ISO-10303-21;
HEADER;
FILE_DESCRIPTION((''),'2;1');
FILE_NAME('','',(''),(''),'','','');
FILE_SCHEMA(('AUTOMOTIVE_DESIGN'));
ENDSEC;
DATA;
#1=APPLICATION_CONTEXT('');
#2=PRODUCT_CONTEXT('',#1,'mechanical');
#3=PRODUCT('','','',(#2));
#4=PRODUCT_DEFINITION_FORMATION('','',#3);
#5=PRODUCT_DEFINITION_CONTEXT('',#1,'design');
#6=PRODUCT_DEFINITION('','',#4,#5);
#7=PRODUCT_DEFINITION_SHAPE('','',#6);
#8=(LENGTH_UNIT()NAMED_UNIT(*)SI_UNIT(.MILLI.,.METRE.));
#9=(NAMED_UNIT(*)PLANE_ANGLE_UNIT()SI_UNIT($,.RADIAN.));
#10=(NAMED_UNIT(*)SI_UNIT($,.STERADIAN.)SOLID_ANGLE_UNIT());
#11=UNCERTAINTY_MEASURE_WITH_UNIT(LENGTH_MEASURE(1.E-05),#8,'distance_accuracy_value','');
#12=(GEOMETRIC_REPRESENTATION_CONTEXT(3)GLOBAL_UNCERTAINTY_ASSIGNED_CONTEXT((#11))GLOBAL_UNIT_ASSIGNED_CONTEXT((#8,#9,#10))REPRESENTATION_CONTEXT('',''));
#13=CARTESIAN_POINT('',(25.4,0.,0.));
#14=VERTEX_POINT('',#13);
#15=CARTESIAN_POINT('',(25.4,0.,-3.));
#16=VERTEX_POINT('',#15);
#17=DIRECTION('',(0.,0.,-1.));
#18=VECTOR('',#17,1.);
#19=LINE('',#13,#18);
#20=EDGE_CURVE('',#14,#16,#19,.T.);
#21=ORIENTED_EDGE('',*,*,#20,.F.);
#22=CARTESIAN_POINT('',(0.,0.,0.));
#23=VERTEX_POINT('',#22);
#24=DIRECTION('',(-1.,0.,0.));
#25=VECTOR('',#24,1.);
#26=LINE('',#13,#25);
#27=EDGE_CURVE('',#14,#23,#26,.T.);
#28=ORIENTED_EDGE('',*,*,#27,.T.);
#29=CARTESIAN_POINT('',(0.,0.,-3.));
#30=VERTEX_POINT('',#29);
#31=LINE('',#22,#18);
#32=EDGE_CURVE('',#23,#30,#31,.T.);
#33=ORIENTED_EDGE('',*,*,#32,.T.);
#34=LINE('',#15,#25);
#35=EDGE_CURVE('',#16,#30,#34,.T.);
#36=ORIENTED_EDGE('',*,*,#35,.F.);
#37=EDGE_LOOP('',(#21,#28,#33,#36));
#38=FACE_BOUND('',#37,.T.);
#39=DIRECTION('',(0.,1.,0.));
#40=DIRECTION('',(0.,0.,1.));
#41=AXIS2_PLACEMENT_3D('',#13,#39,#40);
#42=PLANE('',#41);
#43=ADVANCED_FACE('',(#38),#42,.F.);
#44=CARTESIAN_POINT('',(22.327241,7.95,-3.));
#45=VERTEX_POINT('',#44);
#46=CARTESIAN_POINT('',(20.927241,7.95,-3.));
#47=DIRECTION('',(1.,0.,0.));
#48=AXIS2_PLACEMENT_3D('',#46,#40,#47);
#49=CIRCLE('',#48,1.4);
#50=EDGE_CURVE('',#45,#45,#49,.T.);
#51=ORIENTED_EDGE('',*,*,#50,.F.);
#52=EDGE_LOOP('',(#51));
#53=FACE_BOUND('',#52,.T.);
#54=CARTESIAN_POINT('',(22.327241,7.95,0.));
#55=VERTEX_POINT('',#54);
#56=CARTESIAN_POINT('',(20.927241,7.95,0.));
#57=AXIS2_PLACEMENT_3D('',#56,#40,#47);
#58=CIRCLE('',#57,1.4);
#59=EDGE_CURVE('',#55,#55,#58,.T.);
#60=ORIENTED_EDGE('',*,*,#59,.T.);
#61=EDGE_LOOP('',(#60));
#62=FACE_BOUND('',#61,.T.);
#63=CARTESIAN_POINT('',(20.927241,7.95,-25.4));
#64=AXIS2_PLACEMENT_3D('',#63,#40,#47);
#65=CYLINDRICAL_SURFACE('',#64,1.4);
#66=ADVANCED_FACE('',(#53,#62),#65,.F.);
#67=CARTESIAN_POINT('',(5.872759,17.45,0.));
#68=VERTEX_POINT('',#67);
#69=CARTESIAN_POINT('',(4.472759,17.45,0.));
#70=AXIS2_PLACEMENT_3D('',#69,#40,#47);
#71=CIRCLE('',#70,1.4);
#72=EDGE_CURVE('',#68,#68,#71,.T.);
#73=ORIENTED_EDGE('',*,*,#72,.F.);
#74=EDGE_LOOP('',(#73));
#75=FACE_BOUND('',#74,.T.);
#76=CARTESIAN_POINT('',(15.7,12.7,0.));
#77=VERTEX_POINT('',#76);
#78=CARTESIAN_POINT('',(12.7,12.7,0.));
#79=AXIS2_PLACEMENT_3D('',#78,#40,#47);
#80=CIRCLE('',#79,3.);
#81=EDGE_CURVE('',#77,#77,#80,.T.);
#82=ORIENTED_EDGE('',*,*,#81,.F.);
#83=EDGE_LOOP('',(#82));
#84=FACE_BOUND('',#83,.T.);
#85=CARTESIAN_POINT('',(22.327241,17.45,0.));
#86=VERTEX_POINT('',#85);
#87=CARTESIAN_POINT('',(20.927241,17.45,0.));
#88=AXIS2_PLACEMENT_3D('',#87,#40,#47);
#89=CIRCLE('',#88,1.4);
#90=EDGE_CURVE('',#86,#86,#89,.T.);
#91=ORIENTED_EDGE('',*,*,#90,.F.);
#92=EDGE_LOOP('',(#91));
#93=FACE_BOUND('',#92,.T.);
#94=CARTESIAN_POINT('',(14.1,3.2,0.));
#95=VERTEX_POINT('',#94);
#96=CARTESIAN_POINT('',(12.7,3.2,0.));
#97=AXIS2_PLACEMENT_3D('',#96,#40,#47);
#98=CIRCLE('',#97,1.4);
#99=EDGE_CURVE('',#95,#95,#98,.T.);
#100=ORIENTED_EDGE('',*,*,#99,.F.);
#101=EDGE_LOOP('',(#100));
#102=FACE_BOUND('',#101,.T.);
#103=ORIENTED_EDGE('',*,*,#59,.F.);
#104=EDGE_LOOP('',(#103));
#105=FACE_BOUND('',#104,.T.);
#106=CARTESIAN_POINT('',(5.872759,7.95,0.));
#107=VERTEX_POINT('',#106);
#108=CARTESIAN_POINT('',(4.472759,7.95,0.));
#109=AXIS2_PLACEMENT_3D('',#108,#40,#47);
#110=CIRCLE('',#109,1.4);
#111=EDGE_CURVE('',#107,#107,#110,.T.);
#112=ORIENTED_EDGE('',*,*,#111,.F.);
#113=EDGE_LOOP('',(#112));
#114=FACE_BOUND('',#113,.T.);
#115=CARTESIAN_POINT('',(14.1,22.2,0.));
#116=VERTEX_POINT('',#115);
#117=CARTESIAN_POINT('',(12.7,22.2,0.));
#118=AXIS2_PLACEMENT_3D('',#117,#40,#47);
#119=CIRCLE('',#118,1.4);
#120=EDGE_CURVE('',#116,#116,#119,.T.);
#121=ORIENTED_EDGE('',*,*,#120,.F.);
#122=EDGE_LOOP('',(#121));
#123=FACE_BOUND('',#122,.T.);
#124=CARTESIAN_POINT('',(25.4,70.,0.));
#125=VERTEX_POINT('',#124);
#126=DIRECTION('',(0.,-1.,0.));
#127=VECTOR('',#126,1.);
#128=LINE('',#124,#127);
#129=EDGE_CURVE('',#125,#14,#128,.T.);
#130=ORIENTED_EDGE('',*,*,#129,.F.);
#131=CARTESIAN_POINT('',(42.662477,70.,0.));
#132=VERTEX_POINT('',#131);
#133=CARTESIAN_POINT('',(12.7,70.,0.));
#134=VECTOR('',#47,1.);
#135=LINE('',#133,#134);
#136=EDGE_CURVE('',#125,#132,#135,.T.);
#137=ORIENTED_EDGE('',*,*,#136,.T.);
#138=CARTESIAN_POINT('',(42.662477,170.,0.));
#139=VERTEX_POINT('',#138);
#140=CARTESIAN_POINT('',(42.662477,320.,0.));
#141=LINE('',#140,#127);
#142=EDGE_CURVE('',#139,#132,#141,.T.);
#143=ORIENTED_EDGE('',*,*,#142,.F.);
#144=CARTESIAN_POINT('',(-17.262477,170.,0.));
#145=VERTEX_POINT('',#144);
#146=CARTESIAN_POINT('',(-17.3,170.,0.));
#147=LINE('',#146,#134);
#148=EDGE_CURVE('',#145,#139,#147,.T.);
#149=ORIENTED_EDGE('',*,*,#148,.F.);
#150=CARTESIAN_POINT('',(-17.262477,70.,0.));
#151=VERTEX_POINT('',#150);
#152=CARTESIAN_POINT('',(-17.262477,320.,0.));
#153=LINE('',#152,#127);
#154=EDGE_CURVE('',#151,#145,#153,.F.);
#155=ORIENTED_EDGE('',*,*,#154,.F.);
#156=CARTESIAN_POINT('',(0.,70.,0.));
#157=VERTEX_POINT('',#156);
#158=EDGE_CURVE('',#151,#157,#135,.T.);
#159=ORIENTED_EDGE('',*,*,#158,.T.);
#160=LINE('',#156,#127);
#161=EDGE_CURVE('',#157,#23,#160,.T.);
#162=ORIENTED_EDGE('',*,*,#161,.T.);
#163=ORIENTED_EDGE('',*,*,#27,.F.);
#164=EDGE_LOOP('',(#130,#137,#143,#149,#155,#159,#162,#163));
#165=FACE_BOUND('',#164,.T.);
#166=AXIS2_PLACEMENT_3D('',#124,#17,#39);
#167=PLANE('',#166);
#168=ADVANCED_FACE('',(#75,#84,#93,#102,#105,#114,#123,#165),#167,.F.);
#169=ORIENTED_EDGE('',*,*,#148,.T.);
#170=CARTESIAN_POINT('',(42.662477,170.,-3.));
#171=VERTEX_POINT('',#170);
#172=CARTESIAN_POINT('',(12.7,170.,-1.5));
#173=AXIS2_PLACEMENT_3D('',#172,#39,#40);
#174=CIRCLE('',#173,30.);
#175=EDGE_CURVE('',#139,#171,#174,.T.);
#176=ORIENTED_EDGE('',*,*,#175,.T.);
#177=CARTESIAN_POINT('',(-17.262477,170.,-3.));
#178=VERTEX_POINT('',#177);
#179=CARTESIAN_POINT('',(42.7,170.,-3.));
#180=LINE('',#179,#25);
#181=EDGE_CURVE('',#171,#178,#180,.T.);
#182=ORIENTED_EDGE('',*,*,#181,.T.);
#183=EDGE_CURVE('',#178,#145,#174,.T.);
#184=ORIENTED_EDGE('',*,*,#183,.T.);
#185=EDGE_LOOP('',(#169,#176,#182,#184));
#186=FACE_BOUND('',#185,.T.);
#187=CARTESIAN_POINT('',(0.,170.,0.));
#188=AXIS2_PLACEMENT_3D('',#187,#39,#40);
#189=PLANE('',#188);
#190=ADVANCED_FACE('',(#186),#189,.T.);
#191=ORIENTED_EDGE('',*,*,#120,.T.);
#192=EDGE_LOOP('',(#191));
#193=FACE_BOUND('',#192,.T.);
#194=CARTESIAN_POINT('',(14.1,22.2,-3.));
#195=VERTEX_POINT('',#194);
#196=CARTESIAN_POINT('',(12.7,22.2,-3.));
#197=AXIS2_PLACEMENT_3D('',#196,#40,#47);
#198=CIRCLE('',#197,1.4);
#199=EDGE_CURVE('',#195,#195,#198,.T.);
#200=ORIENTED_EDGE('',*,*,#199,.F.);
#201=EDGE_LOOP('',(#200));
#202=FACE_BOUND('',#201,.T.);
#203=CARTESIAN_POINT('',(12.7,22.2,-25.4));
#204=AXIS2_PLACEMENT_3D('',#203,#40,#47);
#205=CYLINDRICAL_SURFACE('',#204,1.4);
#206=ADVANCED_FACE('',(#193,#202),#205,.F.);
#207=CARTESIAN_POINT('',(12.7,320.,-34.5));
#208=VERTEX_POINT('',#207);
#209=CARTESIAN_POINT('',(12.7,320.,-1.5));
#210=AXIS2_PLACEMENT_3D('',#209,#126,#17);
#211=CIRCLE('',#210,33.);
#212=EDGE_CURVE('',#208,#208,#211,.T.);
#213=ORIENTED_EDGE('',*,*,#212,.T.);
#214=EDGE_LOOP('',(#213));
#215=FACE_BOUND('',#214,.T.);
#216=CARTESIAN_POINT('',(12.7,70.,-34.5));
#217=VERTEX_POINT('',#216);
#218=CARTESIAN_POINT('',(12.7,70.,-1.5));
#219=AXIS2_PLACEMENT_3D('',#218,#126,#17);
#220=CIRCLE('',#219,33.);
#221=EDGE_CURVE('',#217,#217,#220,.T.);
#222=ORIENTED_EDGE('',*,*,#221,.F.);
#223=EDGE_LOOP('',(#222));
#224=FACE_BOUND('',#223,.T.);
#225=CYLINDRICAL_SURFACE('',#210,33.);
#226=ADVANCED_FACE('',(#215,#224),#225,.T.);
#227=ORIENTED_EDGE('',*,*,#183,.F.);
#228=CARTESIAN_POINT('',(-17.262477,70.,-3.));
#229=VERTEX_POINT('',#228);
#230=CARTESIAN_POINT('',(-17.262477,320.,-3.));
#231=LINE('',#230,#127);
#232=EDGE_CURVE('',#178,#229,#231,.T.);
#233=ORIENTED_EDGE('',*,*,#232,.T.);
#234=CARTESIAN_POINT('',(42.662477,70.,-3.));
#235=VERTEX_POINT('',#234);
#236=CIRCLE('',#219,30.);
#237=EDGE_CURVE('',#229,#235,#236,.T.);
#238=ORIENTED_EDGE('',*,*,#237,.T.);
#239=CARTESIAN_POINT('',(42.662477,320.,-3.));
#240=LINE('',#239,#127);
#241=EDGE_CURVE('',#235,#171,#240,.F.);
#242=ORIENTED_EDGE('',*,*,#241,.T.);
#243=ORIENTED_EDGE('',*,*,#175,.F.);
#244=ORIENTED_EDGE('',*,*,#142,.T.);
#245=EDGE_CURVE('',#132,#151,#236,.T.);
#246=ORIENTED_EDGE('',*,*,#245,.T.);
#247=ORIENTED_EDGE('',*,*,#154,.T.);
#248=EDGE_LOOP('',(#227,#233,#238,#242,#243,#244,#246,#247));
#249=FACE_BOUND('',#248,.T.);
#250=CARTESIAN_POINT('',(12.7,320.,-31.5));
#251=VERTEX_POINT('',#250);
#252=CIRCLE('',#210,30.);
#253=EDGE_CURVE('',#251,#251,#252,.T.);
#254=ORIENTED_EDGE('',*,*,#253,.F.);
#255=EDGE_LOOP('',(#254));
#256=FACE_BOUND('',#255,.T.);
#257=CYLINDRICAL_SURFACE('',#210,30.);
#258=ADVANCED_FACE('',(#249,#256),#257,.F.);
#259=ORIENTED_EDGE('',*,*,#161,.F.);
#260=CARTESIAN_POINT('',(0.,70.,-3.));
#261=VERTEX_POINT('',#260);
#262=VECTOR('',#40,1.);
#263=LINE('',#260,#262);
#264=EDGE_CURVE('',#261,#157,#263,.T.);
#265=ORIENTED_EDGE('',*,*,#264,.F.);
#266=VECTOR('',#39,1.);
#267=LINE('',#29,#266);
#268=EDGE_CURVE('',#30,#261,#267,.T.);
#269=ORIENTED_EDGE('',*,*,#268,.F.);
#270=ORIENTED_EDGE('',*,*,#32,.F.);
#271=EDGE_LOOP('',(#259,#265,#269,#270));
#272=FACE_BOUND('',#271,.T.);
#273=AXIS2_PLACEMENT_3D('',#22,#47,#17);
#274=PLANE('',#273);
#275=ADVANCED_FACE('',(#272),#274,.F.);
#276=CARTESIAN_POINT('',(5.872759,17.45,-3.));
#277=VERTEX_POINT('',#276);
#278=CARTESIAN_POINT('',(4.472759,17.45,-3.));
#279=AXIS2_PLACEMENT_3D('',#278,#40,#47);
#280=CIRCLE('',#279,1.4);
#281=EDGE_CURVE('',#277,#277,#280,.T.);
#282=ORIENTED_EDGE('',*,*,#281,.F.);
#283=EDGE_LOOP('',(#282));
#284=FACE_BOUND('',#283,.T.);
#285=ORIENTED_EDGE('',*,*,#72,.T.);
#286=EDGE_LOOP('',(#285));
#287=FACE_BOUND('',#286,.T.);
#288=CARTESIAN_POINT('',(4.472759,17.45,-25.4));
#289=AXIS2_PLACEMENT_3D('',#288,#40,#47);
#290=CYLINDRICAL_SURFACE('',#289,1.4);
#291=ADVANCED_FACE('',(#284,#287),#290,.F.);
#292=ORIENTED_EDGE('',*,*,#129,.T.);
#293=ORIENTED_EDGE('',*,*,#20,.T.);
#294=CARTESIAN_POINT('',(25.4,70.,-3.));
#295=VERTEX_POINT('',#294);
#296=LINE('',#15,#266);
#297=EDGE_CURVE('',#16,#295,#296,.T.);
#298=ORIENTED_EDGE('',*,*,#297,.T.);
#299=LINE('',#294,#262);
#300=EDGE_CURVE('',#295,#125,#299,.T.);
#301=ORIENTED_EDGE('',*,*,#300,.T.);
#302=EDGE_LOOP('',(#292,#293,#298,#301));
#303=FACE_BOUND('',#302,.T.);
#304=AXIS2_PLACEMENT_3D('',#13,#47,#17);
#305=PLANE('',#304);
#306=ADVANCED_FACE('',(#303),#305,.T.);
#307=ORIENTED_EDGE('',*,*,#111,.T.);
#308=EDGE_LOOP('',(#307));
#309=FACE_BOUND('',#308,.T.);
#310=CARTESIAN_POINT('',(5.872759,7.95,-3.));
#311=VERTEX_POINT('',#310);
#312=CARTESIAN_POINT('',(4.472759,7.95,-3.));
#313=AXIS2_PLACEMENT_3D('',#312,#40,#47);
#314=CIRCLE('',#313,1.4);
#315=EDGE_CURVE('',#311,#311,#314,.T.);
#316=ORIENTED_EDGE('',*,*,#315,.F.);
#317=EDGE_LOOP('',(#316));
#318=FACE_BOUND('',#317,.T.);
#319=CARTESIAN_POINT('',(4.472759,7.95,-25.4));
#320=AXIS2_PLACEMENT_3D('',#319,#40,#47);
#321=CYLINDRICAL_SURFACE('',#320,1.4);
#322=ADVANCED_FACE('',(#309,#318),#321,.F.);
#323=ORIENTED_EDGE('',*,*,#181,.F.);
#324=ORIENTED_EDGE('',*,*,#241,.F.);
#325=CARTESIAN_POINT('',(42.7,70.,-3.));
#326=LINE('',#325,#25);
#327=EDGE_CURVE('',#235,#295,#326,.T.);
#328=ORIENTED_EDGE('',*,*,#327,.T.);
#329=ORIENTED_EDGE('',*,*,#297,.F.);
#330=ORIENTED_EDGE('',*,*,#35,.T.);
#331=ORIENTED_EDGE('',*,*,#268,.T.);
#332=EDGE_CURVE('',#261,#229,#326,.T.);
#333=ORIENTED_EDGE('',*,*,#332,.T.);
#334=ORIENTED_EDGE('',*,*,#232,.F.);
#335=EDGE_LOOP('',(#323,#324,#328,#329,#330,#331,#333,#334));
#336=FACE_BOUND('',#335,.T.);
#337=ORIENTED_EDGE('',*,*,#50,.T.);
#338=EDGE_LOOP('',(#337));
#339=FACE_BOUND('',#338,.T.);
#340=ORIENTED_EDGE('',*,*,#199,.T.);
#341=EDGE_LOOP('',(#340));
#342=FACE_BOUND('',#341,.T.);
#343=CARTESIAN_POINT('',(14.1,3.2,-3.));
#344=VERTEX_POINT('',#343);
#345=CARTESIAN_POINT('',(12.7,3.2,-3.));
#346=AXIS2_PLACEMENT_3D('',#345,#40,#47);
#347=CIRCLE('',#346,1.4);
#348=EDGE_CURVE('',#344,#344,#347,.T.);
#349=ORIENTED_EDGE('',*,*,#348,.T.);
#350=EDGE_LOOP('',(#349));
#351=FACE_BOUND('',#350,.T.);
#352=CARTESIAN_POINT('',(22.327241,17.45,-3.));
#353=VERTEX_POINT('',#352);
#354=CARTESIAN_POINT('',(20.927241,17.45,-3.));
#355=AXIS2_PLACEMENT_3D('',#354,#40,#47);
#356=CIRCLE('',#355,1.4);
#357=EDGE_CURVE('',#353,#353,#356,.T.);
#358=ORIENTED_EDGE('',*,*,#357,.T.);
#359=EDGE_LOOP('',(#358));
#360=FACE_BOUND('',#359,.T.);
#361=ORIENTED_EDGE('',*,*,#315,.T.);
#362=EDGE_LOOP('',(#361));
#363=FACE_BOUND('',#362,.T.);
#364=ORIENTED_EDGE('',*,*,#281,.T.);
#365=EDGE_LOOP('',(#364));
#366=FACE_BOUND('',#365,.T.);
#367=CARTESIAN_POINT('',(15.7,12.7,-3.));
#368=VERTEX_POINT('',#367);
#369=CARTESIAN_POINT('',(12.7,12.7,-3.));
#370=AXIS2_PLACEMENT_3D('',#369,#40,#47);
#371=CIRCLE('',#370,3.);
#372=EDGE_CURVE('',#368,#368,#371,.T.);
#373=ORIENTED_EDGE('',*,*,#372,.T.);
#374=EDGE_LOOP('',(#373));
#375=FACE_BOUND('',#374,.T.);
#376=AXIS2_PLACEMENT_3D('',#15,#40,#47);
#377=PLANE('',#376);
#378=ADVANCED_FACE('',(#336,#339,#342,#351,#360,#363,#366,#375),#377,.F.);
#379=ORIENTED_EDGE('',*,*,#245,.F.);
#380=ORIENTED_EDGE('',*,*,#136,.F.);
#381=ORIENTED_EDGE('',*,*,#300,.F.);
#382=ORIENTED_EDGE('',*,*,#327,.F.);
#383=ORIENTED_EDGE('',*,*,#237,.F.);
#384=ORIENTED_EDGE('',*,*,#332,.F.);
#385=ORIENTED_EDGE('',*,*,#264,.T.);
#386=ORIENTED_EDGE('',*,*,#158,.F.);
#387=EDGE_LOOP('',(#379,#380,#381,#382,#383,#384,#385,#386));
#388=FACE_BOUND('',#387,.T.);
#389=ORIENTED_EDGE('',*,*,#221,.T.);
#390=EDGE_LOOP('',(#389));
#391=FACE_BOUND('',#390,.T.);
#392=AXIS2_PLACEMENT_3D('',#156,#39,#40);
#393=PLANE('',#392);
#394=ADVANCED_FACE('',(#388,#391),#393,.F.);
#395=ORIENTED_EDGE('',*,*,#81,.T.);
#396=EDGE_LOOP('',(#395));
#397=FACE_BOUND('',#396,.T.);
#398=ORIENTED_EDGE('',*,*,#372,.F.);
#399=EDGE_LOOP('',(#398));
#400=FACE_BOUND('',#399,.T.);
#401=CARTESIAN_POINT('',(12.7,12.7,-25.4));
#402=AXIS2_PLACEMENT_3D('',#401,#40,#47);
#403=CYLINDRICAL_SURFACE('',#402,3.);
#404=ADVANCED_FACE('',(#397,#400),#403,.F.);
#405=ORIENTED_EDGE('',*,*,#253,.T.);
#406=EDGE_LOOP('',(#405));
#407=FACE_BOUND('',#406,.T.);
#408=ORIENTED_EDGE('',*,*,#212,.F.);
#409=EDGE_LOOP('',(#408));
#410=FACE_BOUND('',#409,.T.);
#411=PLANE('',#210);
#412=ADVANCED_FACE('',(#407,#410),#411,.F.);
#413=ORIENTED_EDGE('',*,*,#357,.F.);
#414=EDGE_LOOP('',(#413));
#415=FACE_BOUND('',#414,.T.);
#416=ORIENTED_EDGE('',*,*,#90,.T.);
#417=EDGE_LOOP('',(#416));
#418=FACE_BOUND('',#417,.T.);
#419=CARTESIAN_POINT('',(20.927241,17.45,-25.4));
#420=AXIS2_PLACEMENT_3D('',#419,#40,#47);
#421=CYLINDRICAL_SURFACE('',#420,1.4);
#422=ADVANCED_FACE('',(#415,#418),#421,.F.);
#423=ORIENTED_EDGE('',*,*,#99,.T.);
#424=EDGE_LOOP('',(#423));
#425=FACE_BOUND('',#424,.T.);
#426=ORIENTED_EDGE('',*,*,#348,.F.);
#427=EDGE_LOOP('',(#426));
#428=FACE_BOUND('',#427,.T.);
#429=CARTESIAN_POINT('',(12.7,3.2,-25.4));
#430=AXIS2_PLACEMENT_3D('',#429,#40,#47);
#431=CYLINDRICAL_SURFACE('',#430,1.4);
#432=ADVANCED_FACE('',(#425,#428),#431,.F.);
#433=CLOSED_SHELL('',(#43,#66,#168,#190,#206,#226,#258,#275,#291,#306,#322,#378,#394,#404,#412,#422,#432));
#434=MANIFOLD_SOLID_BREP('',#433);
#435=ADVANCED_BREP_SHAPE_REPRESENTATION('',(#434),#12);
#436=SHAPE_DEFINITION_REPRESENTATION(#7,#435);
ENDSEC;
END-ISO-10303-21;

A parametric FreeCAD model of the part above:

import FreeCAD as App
import Part
import Sketcher
Q = App.Units.Quantity


def add_polygon(sketch, points):
    """Adds a closed chain of lines whose ends are joined by coincident constraints."""
    first, n = sketch.GeometryCount, len(points)
    for a, b in zip(points, points[1:] + points[:1]):
        sketch.addGeometry(Part.LineSegment(App.Vector(*a, 0), App.Vector(*b, 0)), False)
    for i in range(n):
        sketch.addConstraint(Sketcher.Constraint("Coincident", first + i, 2, first + (i + 1) % n, 1))

doc = App.newDocument("Part")
body = doc.addObject("PartDesign::Body", "Body")

sketch1 = body.newObject("Sketcher::SketchObject", "Sketch")
sketch1.AttachmentSupport = (doc.getObject("YZ_Plane"), [""])
sketch1.MapMode = "FlatFace"
add_polygon(sketch1, [(70, 0), (0, 0), (0, -3), (70, -3)])
sketch1.addConstraint(Sketcher.Constraint("Horizontal", 0))
sketch1.addConstraint(Sketcher.Constraint("Vertical", 1))
sketch1.addConstraint(Sketcher.Constraint("Horizontal", 2))
sketch1.addConstraint(Sketcher.Constraint("Vertical", 3))
sketch1.addConstraint(Sketcher.Constraint("Coincident", 0, 2, -1, 1))
sketch1.addConstraint(Sketcher.Constraint("DistanceX", 0, 2, 0, 1, Q("70 mm")))
sketch1.addConstraint(Sketcher.Constraint("DistanceY", 1, 2, 1, 1, Q("3 mm")))
pad1 = body.newObject("PartDesign::Pad", "Pad")
pad1.Profile = sketch1
pad1.Length = 25.4

sketch2 = body.newObject("Sketcher::SketchObject", "Sketch001")
sketch2.AttachmentSupport = (doc.getObject("XY_Plane"), [""])
sketch2.MapMode = "FlatFace"
sketch2.addGeometry(Part.Circle(App.Vector(12.7, 12.7, 0), App.Vector(0, 0, 1), 3), False)
sketch2.addGeometry(Part.Circle(App.Vector(12.7, 22.2, 0), App.Vector(0, 0, 1), 1.4), False)
sketch2.addGeometry(Part.Circle(App.Vector(20.9, 17.4, 0), App.Vector(0, 0, 1), 1.4), False)
sketch2.addGeometry(Part.Circle(App.Vector(20.9, 8, 0), App.Vector(0, 0, 1), 1.4), False)
sketch2.addGeometry(Part.Circle(App.Vector(12.7, 3.2, 0), App.Vector(0, 0, 1), 1.4), False)
sketch2.addGeometry(Part.Circle(App.Vector(4.5, 8, 0), App.Vector(0, 0, 1), 1.4), False)
sketch2.addGeometry(Part.Circle(App.Vector(4.5, 17.4, 0), App.Vector(0, 0, 1), 1.4), False)
sketch2.addConstraint(Sketcher.Constraint("Equal", 1, 2))
sketch2.addConstraint(Sketcher.Constraint("Equal", 2, 3))
sketch2.addConstraint(Sketcher.Constraint("Equal", 3, 4))
sketch2.addConstraint(Sketcher.Constraint("Equal", 4, 5))
sketch2.addConstraint(Sketcher.Constraint("Equal", 5, 6))
sketch2.addConstraint(Sketcher.Constraint("Horizontal", 3, 3, 5, 3))
sketch2.addConstraint(Sketcher.Constraint("Horizontal", 2, 3, 6, 3))
sketch2.addConstraint(Sketcher.Constraint("Vertical", 0, 3, 1, 3))
sketch2.addConstraint(Sketcher.Constraint("Vertical", 2, 3, 3, 3))
sketch2.addConstraint(Sketcher.Constraint("Vertical", 1, 3, 4, 3))
sketch2.addConstraint(Sketcher.Constraint("Vertical", 5, 3, 6, 3))
sketch2.addConstraint(Sketcher.Constraint("Diameter", 0, Q("6 mm")))
sketch2.addConstraint(Sketcher.Constraint("Diameter", 1, Q("2.8 mm")))
sketch2.addConstraint(Sketcher.Constraint("DistanceY", 4, 3, 1, 3, Q("19 mm")))
sketch2.addConstraint(Sketcher.Constraint("DistanceX", -1, 1, 0, 3, Q("12.7 mm")))
sketch2.addConstraint(Sketcher.Constraint("DistanceY", -1, 1, 0, 3, Q("12.7 mm")))
sketch2.addConstraint(Sketcher.Constraint("DistanceY", -1, 1, 1, 3, Q("22.2 mm")))
sketch2.addConstraint(Sketcher.Constraint("DistanceY", 3, 3, 2, 3, Q("9.5 mm")))
sketch2.addConstraint(Sketcher.Constraint("DistanceY", -1, 1, 2, 3, Q("17.45 mm")))
sketch2.addConstraint(Sketcher.Constraint("DistanceX", -1, 1, 2, 3, Q("20.927241 mm")))
sketch2.addConstraint(Sketcher.Constraint("DistanceX", -1, 1, 5, 3, Q("4.472759 mm")))
pocket1 = body.newObject("PartDesign::Pocket", "Pocket")
pocket1.Profile = sketch2
pocket1.Length = 25.4

sketch3 = body.newObject("Sketcher::SketchObject", "Sketch002")
sketch3.AttachmentSupport = (doc.getObject("XZ_Plane"), [""])
sketch3.MapMode = "FlatFace"
sketch3.AttachmentOffset = App.Placement(App.Vector(0, 0, -70), App.Rotation())
add_polygon(sketch3, [(42.7, 0), (42.7, -3), (-17.3, -3), (-17.3, 0)])
sketch3.addConstraint(Sketcher.Constraint("Vertical", 0))
sketch3.addConstraint(Sketcher.Constraint("Horizontal", 1))
sketch3.addConstraint(Sketcher.Constraint("Vertical", 2))
sketch3.addConstraint(Sketcher.Constraint("Horizontal", 3))
sketch3.addConstraint(Sketcher.Constraint("PointOnObject", 2, 2, -1))
sketch3.addConstraint(Sketcher.Constraint("DistanceX", 1, 2, 1, 1, Q("60 mm")))
sketch3.addConstraint(Sketcher.Constraint("DistanceY", 0, 2, 0, 1, Q("3 mm")))
sketch3.addConstraint(Sketcher.Constraint("DistanceX", -1, 1, 0, 2, Q("42.7 mm")))
pad2 = body.newObject("PartDesign::Pad", "Pad001")
pad2.Profile = sketch3
pad2.Length = 100
pad2.Reversed = True

sketch4 = body.newObject("Sketcher::SketchObject", "Sketch003")
sketch4.AttachmentSupport = (doc.getObject("XZ_Plane"), [""])
sketch4.MapMode = "FlatFace"
sketch4.AttachmentOffset = App.Placement(App.Vector(0, 0, -70), App.Rotation())
sketch4.addGeometry(Part.Circle(App.Vector(13, -2, 0), App.Vector(0, 0, 1), 33), False)
sketch4.addGeometry(Part.Circle(App.Vector(13, -2, 0), App.Vector(0, 0, 1), 30), False)
sketch4.addConstraint(Sketcher.Constraint("Coincident", 1, 3, 0, 3))
sketch4.addConstraint(Sketcher.Constraint("Diameter", 0, Q("66 mm")))
sketch4.addConstraint(Sketcher.Constraint("Diameter", 1, Q("60 mm")))
sketch4.addConstraint(Sketcher.Constraint("DistanceX", -1, 1, 0, 3, Q("12.7 mm")))
sketch4.addConstraint(Sketcher.Constraint("DistanceY", 0, 3, -1, 1, Q("1.5 mm")))
pad3 = body.newObject("PartDesign::Pad", "Pad002")
pad3.Profile = sketch4
pad3.Length = 250
pad3.Reversed = True

doc.recompute()
